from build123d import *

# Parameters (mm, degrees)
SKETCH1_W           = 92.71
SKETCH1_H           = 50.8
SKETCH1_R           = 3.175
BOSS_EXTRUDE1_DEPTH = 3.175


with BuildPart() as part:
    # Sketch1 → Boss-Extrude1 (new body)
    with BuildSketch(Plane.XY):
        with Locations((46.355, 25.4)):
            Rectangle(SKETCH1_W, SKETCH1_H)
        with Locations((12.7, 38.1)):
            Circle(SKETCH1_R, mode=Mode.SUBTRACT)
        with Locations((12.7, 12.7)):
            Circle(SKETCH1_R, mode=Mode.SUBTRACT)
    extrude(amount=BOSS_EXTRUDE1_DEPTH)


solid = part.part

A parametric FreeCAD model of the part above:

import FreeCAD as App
import Part
import Sketcher

V = App.Vector
Q = App.Units.Quantity


def add_polygon(sketch, points):
    """Adds a closed chain of lines whose ends are joined by coincident constraints."""
    first, n = sketch.GeometryCount, len(points)
    for a, b in zip(points, points[1:] + points[:1]):
        sketch.addGeometry(Part.LineSegment(App.Vector(*a, 0), App.Vector(*b, 0)), False)
    for i in range(n):
        sketch.addConstraint(Sketcher.Constraint("Coincident", first + i, 2, first + (i + 1) % n, 1))

doc = App.newDocument("Part")
params = doc.addObject("Spreadsheet::Sheet", "Params")
for row, (alias, value) in enumerate([
    ("sketch1_diameter", "0.25 in"),
    ("sketch1_height", "2 in"),
    ("sketch1_width", "3.65 in"),
    ("pad1_length", "0.125 in"),
], start=1):
    params.set(f"A{row}", alias)
    params.set(f"B{row}", "=" + value)
    params.setAlias(f"B{row}", alias)

body = doc.addObject("PartDesign::Body", "Body")

# Sketch on XY plane
sketch1 = body.newObject("Sketcher::SketchObject", "Sketch")
sketch1.AttachmentSupport = (doc.getObject("XY_Plane"), [""])
sketch1.MapMode = "FlatFace"
add_polygon(sketch1, [(0, 50.8), (0, 0), (92.7, 0), (92.7, 50.8)])  # lines 0-3
sketch1.addGeometry(Part.Circle(V(12.7, 12.7, 0), V(0, 0, 1), 3.2), False)  # 4
sketch1.addGeometry(Part.Circle(V(12.7, 38.1, 0), V(0, 0, 1), 3.2), False)  # 5
sketch1.addConstraint([
    Sketcher.Constraint("Vertical", 0),
    Sketcher.Constraint("Horizontal", 1),
    Sketcher.Constraint("Vertical", 2),
    Sketcher.Constraint("Horizontal", 3),
    Sketcher.Constraint("Coincident", 0, 2, -1, 1),
    Sketcher.Constraint("Equal", 4, 5),
    Sketcher.Constraint("Vertical", 4, 3, 5, 3),
    Sketcher.Constraint("Diameter", 4, Q("0.25 in")),
    Sketcher.Constraint("DistanceY", 0, 2, 0, 1, Q("2 in")),
    Sketcher.Constraint("DistanceY", 4, 3, 5, 3, Q("1 in")),
    Sketcher.Constraint("DistanceX", 1, 1, 1, 2, Q("3.65 in")),
    Sketcher.Constraint("DistanceX", -1, 1, 4, 3, Q("0.5 in")),
    Sketcher.Constraint("DistanceY", -1, 1, 4, 3, Q("0.5 in")),
])
sketch1.setExpression("Constraints[11]", "Params.sketch1_diameter")
sketch1.setExpression("Constraints[12]", "Params.sketch1_height")
sketch1.setExpression("Constraints[14]", "Params.sketch1_width")
pad1 = body.newObject("PartDesign::Pad", "Pad")
pad1.Profile = sketch1
pad1.setExpression("Length", "Params.pad1_length")

doc.recompute()
